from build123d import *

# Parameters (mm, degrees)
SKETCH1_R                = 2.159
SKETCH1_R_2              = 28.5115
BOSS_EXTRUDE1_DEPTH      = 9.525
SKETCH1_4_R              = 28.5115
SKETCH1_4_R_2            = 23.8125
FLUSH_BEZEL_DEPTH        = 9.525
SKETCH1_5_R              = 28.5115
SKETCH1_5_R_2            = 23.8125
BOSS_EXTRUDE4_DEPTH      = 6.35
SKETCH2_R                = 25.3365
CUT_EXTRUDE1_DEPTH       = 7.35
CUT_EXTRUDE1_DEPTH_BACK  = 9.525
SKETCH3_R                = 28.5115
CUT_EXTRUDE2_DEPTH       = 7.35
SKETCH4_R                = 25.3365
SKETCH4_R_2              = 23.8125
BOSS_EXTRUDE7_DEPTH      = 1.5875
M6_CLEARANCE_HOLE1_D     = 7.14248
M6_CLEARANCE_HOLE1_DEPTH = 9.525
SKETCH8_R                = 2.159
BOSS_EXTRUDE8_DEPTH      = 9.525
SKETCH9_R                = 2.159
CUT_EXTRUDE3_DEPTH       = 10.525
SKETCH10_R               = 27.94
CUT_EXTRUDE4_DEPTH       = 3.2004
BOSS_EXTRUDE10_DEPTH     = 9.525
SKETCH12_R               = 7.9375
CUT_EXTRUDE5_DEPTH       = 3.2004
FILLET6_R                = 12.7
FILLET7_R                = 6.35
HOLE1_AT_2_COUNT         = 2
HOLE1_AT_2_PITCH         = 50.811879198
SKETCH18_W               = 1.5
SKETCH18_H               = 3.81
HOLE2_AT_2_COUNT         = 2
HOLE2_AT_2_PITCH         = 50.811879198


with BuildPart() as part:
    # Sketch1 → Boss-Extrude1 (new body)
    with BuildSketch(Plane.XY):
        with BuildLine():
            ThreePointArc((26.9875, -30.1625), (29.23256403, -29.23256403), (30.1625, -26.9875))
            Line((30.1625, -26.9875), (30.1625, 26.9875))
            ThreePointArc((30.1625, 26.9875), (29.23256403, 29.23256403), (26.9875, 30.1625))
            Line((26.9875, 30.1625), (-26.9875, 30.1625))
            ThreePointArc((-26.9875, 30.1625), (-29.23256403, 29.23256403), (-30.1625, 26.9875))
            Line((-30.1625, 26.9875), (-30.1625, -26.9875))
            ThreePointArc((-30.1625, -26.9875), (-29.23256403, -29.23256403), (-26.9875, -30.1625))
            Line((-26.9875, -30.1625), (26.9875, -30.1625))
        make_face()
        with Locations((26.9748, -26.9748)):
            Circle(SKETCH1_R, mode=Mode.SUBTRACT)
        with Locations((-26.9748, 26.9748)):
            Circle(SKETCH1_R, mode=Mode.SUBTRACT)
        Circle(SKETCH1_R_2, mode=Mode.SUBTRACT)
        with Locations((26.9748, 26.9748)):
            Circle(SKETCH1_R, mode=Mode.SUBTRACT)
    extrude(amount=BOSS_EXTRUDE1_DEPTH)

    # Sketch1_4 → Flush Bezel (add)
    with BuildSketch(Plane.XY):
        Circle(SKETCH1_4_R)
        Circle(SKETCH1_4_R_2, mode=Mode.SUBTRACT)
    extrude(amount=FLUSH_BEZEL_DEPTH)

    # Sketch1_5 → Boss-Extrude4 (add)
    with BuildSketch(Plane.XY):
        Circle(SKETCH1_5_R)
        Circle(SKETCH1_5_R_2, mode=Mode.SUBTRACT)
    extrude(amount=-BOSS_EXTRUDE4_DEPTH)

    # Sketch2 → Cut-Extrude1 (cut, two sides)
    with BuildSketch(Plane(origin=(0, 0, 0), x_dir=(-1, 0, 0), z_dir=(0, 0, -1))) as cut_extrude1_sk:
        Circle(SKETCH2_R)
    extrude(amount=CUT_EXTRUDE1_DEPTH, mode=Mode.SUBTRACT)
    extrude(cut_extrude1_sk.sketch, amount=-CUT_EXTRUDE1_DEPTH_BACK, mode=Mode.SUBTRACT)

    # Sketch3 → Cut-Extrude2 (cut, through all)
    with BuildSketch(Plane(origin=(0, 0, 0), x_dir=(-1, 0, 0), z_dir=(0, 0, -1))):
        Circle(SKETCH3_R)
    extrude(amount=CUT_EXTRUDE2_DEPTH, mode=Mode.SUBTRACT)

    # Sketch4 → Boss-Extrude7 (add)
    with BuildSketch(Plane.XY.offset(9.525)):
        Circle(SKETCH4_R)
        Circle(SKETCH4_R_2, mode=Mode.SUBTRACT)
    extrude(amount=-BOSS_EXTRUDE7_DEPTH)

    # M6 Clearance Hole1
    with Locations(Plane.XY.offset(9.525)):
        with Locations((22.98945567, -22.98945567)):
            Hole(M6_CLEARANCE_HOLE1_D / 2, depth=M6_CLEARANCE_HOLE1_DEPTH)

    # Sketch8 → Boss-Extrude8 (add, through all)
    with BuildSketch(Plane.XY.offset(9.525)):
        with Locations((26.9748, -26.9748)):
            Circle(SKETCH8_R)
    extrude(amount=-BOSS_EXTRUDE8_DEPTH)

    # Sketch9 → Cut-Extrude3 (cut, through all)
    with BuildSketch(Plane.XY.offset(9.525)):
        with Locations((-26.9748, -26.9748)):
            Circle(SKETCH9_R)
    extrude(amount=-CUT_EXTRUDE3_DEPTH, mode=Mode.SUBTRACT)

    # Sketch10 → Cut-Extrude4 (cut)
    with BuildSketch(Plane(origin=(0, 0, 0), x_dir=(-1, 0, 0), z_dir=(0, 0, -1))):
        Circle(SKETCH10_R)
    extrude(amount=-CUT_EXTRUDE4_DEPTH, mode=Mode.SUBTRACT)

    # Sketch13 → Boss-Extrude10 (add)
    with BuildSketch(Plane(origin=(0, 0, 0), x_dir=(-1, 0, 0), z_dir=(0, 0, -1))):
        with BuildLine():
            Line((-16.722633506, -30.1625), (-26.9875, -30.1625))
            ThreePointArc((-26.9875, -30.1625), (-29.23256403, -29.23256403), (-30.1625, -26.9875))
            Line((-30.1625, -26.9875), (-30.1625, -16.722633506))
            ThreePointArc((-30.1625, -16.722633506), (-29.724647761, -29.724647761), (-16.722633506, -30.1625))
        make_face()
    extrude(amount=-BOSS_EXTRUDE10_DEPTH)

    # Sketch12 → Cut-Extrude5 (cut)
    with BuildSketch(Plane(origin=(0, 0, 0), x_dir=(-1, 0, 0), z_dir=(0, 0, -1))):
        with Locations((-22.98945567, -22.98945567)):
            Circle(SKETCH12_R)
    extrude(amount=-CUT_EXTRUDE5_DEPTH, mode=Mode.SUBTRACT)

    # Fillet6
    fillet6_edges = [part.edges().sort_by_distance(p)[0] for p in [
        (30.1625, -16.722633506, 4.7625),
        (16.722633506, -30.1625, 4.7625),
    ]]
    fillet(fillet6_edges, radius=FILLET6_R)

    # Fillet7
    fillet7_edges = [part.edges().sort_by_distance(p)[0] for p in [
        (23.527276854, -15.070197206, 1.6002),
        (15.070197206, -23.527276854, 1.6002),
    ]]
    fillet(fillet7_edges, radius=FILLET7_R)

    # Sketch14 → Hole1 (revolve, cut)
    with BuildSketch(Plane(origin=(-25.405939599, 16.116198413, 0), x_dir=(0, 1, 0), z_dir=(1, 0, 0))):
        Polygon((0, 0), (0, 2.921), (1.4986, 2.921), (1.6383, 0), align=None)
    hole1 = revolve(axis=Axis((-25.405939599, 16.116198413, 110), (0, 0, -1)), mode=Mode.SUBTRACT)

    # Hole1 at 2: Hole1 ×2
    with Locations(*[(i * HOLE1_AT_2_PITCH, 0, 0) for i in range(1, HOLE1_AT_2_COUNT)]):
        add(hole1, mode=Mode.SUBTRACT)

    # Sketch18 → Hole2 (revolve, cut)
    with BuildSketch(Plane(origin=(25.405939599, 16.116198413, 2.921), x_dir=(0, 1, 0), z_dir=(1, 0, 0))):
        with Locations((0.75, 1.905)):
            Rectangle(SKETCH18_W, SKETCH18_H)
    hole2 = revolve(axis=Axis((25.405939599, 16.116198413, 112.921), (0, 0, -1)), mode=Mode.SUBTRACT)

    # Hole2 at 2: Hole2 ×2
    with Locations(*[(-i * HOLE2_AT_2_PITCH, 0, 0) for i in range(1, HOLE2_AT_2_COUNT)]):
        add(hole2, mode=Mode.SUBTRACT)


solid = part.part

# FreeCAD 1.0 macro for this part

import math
import FreeCAD as App
import Part
import Sketcher
Q = App.Units.Quantity


def edges_at(feature, points):
    """Names of the edges that pass closest to the given points."""
    edges = feature.Shape.Edges
    near = lambda p: min(range(len(edges)), key=lambda i: edges[i].distToShape(Part.Vertex(*p))[0])
    return sorted({f"Edge{near(p) + 1}" for p in points})


def add_polygon(sketch, points):
    """Adds a closed chain of lines whose ends are joined by coincident constraints."""
    first, n = sketch.GeometryCount, len(points)
    for a, b in zip(points, points[1:] + points[:1]):
        sketch.addGeometry(Part.LineSegment(App.Vector(*a, 0), App.Vector(*b, 0)), False)
    for i in range(n):
        sketch.addConstraint(Sketcher.Constraint("Coincident", first + i, 2, first + (i + 1) % n, 1))

doc = App.newDocument("Part")
body = doc.addObject("PartDesign::Body", "Body")

# Sketch on XY plane
sketch1 = body.newObject("Sketcher::SketchObject", "Sketch")
sketch1.AttachmentSupport = (doc.getObject("XY_Plane"), [""])
sketch1.MapMode = "FlatFace"
sketch1.addGeometry(Part.ArcOfCircle(Part.Circle(App.Vector(26.9875, -26.9875, 0), App.Vector(0, 0, 1), 3.175), math.radians(-90), math.radians(0)), False)
sketch1.addGeometry(Part.LineSegment(App.Vector(30.1625, -26.9875, 0), App.Vector(30.1625, 26.9875, 0)), False)
sketch1.addGeometry(Part.ArcOfCircle(Part.Circle(App.Vector(26.9875, 26.9875, 0), App.Vector(0, 0, 1), 3.175), math.radians(0), math.radians(90)), False)
sketch1.addGeometry(Part.LineSegment(App.Vector(26.9875, 30.1625, 0), App.Vector(-26.9875, 30.1625, 0)), False)
sketch1.addGeometry(Part.ArcOfCircle(Part.Circle(App.Vector(-26.9875, 26.9875, 0), App.Vector(0, 0, 1), 3.175), math.radians(90), math.radians(180)), False)
sketch1.addGeometry(Part.LineSegment(App.Vector(-30.1625, 26.9875, 0), App.Vector(-30.1625, -26.9875, 0)), False)
sketch1.addGeometry(Part.ArcOfCircle(Part.Circle(App.Vector(-26.9875, -26.9875, 0), App.Vector(0, 0, 1), 3.175), math.radians(-180), math.radians(-90)), False)
sketch1.addGeometry(Part.LineSegment(App.Vector(-26.9875, -30.1625, 0), App.Vector(26.9875, -30.1625, 0)), False)
sketch1.addGeometry(Part.Circle(App.Vector(26.9748, -26.9748, 0), App.Vector(0, 0, 1), 2.159), False)
sketch1.addGeometry(Part.Circle(App.Vector(-26.9748, 26.9748, 0), App.Vector(0, 0, 1), 2.159), False)
sketch1.addGeometry(Part.Circle(App.Vector(0, 0, 0), App.Vector(0, 0, 1), 28.5115), False)
sketch1.addGeometry(Part.Circle(App.Vector(26.9748, 26.9748, 0), App.Vector(0, 0, 1), 2.159), False)
sketch1.addConstraint(Sketcher.Constraint("Tangent", 0, 2, 1, 1))
sketch1.addConstraint(Sketcher.Constraint("Tangent", 1, 2, 2, 1))
sketch1.addConstraint(Sketcher.Constraint("Tangent", 2, 2, 3, 1))
sketch1.addConstraint(Sketcher.Constraint("Tangent", 3, 2, 4, 1))
sketch1.addConstraint(Sketcher.Constraint("Tangent", 4, 2, 5, 1))
sketch1.addConstraint(Sketcher.Constraint("Tangent", 5, 2, 6, 1))
sketch1.addConstraint(Sketcher.Constraint("Tangent", 6, 2, 7, 1))
sketch1.addConstraint(Sketcher.Constraint("Tangent", 7, 2, 0, 1))
sketch1.addConstraint(Sketcher.Constraint("Vertical", 1))
sketch1.addConstraint(Sketcher.Constraint("Horizontal", 3))
sketch1.addConstraint(Sketcher.Constraint("Vertical", 5))
sketch1.addConstraint(Sketcher.Constraint("Horizontal", 7))
sketch1.addConstraint(Sketcher.Constraint("Coincident", 10, 3, -1, 1))
sketch1.addConstraint(Sketcher.Constraint("Equal", 0, 2))
sketch1.addConstraint(Sketcher.Constraint("Equal", 2, 4))
sketch1.addConstraint(Sketcher.Constraint("Equal", 4, 6))
sketch1.addConstraint(Sketcher.Constraint("Equal", 8, 9))
sketch1.addConstraint(Sketcher.Constraint("Equal", 9, 11))
sketch1.addConstraint(Sketcher.Constraint("Symmetric", 0, 3, 4, 3, -1, 1))
sketch1.addConstraint(Sketcher.Constraint("Symmetric", 8, 3, 9, 3, -1, 1))
sketch1.addConstraint(Sketcher.Constraint("Symmetric", 9, 3, 11, 3, -2))
sketch1.addConstraint(Sketcher.Constraint("Equal", 7, 1))
sketch1.addConstraint(Sketcher.Constraint("Diameter", 8, Q("0.17 in")))
sketch1.addConstraint(Sketcher.Constraint("Diameter", 10, Q("2.245 in")))
sketch1.addConstraint(Sketcher.Constraint("Radius", 0, Q("0.125 in")))
sketch1.addConstraint(Sketcher.Constraint("DistanceX", 3, 2, 3, 1, Q("2.125 in")))
sketch1.addConstraint(Sketcher.Constraint("DistanceX", -1, 1, 8, 3, Q("1.062 in")))
sketch1.addConstraint(Sketcher.Constraint("DistanceY", 8, 3, -1, 1, Q("1.062 in")))
pad1 = body.newObject("PartDesign::Pad", "Pad")
pad1.Profile = sketch1
pad1.Length = Q("0.375 in")

# Sketch on XY plane
sketch2 = body.newObject("Sketcher::SketchObject", "Sketch001")
sketch2.AttachmentSupport = (doc.getObject("XY_Plane"), [""])
sketch2.MapMode = "FlatFace"
sketch2.addGeometry(Part.Circle(App.Vector(0, 0, 0), App.Vector(0, 0, 1), 28.5115), False)
sketch2.addGeometry(Part.Circle(App.Vector(0, 0, 0), App.Vector(0, 0, 1), 23.8125), False)
sketch2.addConstraint(Sketcher.Constraint("Coincident", 0, 3, -1, 1))
sketch2.addConstraint(Sketcher.Constraint("Coincident", 1, 3, -1, 1))
sketch2.addConstraint(Sketcher.Constraint("Diameter", 0, Q("2.245 in")))
sketch2.addConstraint(Sketcher.Constraint("Diameter", 1, Q("1.875 in")))
pad2 = body.newObject("PartDesign::Pad", "Pad001")
pad2.Profile = sketch2
pad2.Length = Q("0.375 in")

# Sketch on XY plane
sketch3 = body.newObject("Sketcher::SketchObject", "Sketch002")
sketch3.AttachmentSupport = (doc.getObject("XY_Plane"), [""])
sketch3.MapMode = "FlatFace"
sketch3.addGeometry(Part.Circle(App.Vector(0, 0, 0), App.Vector(0, 0, 1), 28.5115), False)
sketch3.addGeometry(Part.Circle(App.Vector(0, 0, 0), App.Vector(0, 0, 1), 23.8125), False)
sketch3.addConstraint(Sketcher.Constraint("Coincident", 0, 3, -1, 1))
sketch3.addConstraint(Sketcher.Constraint("Coincident", 1, 3, -1, 1))
sketch3.addConstraint(Sketcher.Constraint("Diameter", 0, Q("2.245 in")))
sketch3.addConstraint(Sketcher.Constraint("Diameter", 1, Q("1.875 in")))
pad3 = body.newObject("PartDesign::Pad", "Pad002")
pad3.Profile = sketch3
pad3.Length = Q("0.25 in")
pad3.Reversed = True

# Sketch on XY plane
sketch4 = body.newObject("Sketcher::SketchObject", "Sketch003")
sketch4.AttachmentSupport = (doc.getObject("XY_Plane"), [""])
sketch4.MapMode = "FlatFace"
sketch4.addGeometry(Part.Circle(App.Vector(0, 0, 0), App.Vector(0, 0, 1), 25.3365), False)
sketch4.addConstraint(Sketcher.Constraint("Coincident", 0, 3, -1, 1))
sketch4.addConstraint(Sketcher.Constraint("Diameter", 0, Q("1.995 in")))
pocket1 = body.newObject("PartDesign::Pocket", "Pocket")
pocket1.Profile = sketch4
pocket1.Type = "ThroughAll"
pocket1.Midplane = True

# Sketch on XY plane
sketch5 = body.newObject("Sketcher::SketchObject", "Sketch004")
sketch5.AttachmentSupport = (doc.getObject("XY_Plane"), [""])
sketch5.MapMode = "FlatFace"
sketch5.addGeometry(Part.Circle(App.Vector(0, 0, 0), App.Vector(0, 0, 1), 28.5115), False)
sketch5.addConstraint(Sketcher.Constraint("Coincident", 0, 3, -1, 1))
sketch5.addConstraint(Sketcher.Constraint("Diameter", 0, Q("2.245 in")))
pocket2 = body.newObject("PartDesign::Pocket", "Pocket001")
pocket2.Profile = sketch5
pocket2.Type = "ThroughAll"

# Sketch on XY plane
sketch6 = body.newObject("Sketcher::SketchObject", "Sketch005")
sketch6.AttachmentSupport = (doc.getObject("XY_Plane"), [""])
sketch6.MapMode = "FlatFace"
sketch6.AttachmentOffset = App.Placement(App.Vector(0, 0, 0.375 * 25.4), App.Rotation())
sketch6.addGeometry(Part.Circle(App.Vector(0, 0, 0), App.Vector(0, 0, 1), 25.3365), False)
sketch6.addGeometry(Part.Circle(App.Vector(0, 0, 0), App.Vector(0, 0, 1), 23.8125), False)
sketch6.addConstraint(Sketcher.Constraint("Coincident", 0, 3, -1, 1))
sketch6.addConstraint(Sketcher.Constraint("Coincident", 1, 3, -1, 1))
sketch6.addConstraint(Sketcher.Constraint("Diameter", 0, Q("1.995 in")))
sketch6.addConstraint(Sketcher.Constraint("Diameter", 1, Q("1.875 in")))
pad4 = body.newObject("PartDesign::Pad", "Pad003")
pad4.Profile = sketch6
pad4.Length = Q("0.0625 in")
pad4.Reversed = True

# Sketch on XY plane
sketch7 = body.newObject("Sketcher::SketchObject", "Sketch006")
sketch7.AttachmentSupport = (doc.getObject("XY_Plane"), [""])
sketch7.MapMode = "FlatFace"
sketch7.AttachmentOffset = App.Placement(App.Vector(0, 0, 0.375 * 25.4), App.Rotation())
sketch7.addGeometry(Part.Circle(App.Vector(22.989456, -22.989456, 0), App.Vector(0, 0, 1), 3.57124), False)
sketch7.addConstraint(Sketcher.Constraint("Diameter", 0, Q("0.2812 in")))
sketch7.addConstraint(Sketcher.Constraint("DistanceX", -1, 1, 0, 3, 22.989456))
sketch7.addConstraint(Sketcher.Constraint("DistanceY", 0, 3, -1, 1, 22.989456))
doc.recompute()
hole = body.newObject("PartDesign::Hole", "Hole")
hole.Profile = sketch7
hole.ThreadType = "None"
hole.Diameter = Q("0.2812 in")
hole.DepthType = "Dimension"
hole.Depth = Q("0.375 in")
hole.DrillPoint = "Flat"

# Sketch on XY plane
sketch8 = body.newObject("Sketcher::SketchObject", "Sketch007")
sketch8.AttachmentSupport = (doc.getObject("XY_Plane"), [""])
sketch8.MapMode = "FlatFace"
sketch8.AttachmentOffset = App.Placement(App.Vector(0, 0, 0.375 * 25.4), App.Rotation())
sketch8.addGeometry(Part.Circle(App.Vector(26.9748, -26.9748, 0), App.Vector(0, 0, 1), 2.159), False)
sketch8.addConstraint(Sketcher.Constraint("Diameter", 0, Q("0.17 in")))
sketch8.addConstraint(Sketcher.Constraint("DistanceX", -1, 1, 0, 3, Q("1.062 in")))
sketch8.addConstraint(Sketcher.Constraint("DistanceY", 0, 3, -1, 1, Q("1.062 in")))
pad5 = body.newObject("PartDesign::Pad", "Pad004")
pad5.Profile = sketch8
pad5.Length = Q("0.375 in")
pad5.Reversed = True

# Sketch on XY plane
sketch9 = body.newObject("Sketcher::SketchObject", "Sketch008")
sketch9.AttachmentSupport = (doc.getObject("XY_Plane"), [""])
sketch9.MapMode = "FlatFace"
sketch9.AttachmentOffset = App.Placement(App.Vector(0, 0, 0.375 * 25.4), App.Rotation())
sketch9.addGeometry(Part.Circle(App.Vector(-26.9748, -26.9748, 0), App.Vector(0, 0, 1), 2.159), False)
sketch9.addConstraint(Sketcher.Constraint("Diameter", 0, Q("0.17 in")))
sketch9.addConstraint(Sketcher.Constraint("DistanceX", 0, 3, -1, 1, Q("1.062 in")))
sketch9.addConstraint(Sketcher.Constraint("DistanceY", 0, 3, -1, 1, Q("1.062 in")))
pocket3 = body.newObject("PartDesign::Pocket", "Pocket002")
pocket3.Profile = sketch9
pocket3.Type = "ThroughAll"

# Sketch on XY plane
sketch10 = body.newObject("Sketcher::SketchObject", "Sketch009")
sketch10.AttachmentSupport = (doc.getObject("XY_Plane"), [""])
sketch10.MapMode = "FlatFace"
sketch10.addGeometry(Part.Circle(App.Vector(0, 0, 0), App.Vector(0, 0, 1), 27.94), False)
sketch10.addConstraint(Sketcher.Constraint("Coincident", 0, 3, -1, 1))
sketch10.addConstraint(Sketcher.Constraint("Diameter", 0, Q("2.2 in")))
pocket4 = body.newObject("PartDesign::Pocket", "Pocket003")
pocket4.Profile = sketch10
pocket4.Length = Q("0.126 in")
pocket4.Reversed = True

# Sketch on XY plane
sketch11 = body.newObject("Sketcher::SketchObject", "Sketch010")
sketch11.AttachmentSupport = (doc.getObject("XY_Plane"), [""])
sketch11.MapMode = "FlatFace"
sketch11.addGeometry(Part.LineSegment(App.Vector(16.722634, -30.1625, 0), App.Vector(26.9875, -30.1625, 0)), False)
sketch11.addGeometry(Part.ArcOfCircle(Part.Circle(App.Vector(26.9875, -26.9875, 0), App.Vector(0, 0, 1), 3.175), math.radians(-90), math.radians(0)), False)
sketch11.addGeometry(Part.LineSegment(App.Vector(30.1625, -26.9875, 0), App.Vector(30.1625, -16.722634, 0)), False)
sketch11.addGeometry(Part.ArcOfCircle(Part.Circle(App.Vector(22.989456, -22.989456, 0), App.Vector(0, 0, 1), 9.525), math.radians(-131.142504), math.radians(41.142504)), False)
sketch11.addConstraint(Sketcher.Constraint("Tangent", 0, 2, 1, 1))
sketch11.addConstraint(Sketcher.Constraint("Tangent", 1, 2, 2, 1))
sketch11.addConstraint(Sketcher.Constraint("Coincident", 2, 2, 3, 2))
sketch11.addConstraint(Sketcher.Constraint("Coincident", 3, 1, 0, 1))
sketch11.addConstraint(Sketcher.Constraint("Horizontal", 0))
sketch11.addConstraint(Sketcher.Constraint("Vertical", 2))
sketch11.addConstraint(Sketcher.Constraint("Equal", 0, 2))
sketch11.addConstraint(Sketcher.Constraint("Radius", 1, Q("0.125 in")))
sketch11.addConstraint(Sketcher.Constraint("Radius", 3, Q("0.375 in")))
sketch11.addConstraint(Sketcher.Constraint("DistanceX", -1, 1, 1, 3, Q("1.0625 in")))
sketch11.addConstraint(Sketcher.Constraint("DistanceY", 1, 3, -1, 1, Q("1.0625 in")))
sketch11.addConstraint(Sketcher.Constraint("DistanceX", 0, 1, 0, 2, 10.264866))
pad6 = body.newObject("PartDesign::Pad", "Pad005")
pad6.Profile = sketch11
pad6.Length = Q("0.375 in")

# Sketch on XY plane
sketch12 = body.newObject("Sketcher::SketchObject", "Sketch011")
sketch12.AttachmentSupport = (doc.getObject("XY_Plane"), [""])
sketch12.MapMode = "FlatFace"
sketch12.addGeometry(Part.Circle(App.Vector(22.989456, -22.989456, 0), App.Vector(0, 0, 1), 7.9375), False)
sketch12.addConstraint(Sketcher.Constraint("Diameter", 0, Q("0.625 in")))
sketch12.addConstraint(Sketcher.Constraint("DistanceX", -1, 1, 0, 3, 22.989456))
sketch12.addConstraint(Sketcher.Constraint("DistanceY", 0, 3, -1, 1, 22.989456))
pocket5 = body.newObject("PartDesign::Pocket", "Pocket004")
pocket5.Profile = sketch12
pocket5.Length = Q("0.126 in")
pocket5.Reversed = True
doc.recompute()

fillet = body.newObject("PartDesign::Fillet", "Fillet")
fillet.Base = (pocket5, edges_at(pocket5, [(30.163, -16.723, 4.763), (16.723, -30.163, 4.763)]))
fillet.Radius = Q("0.5 in")
doc.recompute()

fillet2 = body.newObject("PartDesign::Fillet", "Fillet001")
fillet2.Base = (fillet, edges_at(fillet, [(23.527, -15.07, 1.6), (15.07, -23.527, 1.6)]))
fillet2.Radius = Q("0.25 in")

# Sketch on YZ plane
sketch13 = body.newObject("Sketcher::SketchObject", "Sketch012")
sketch13.AttachmentSupport = (doc.getObject("YZ_Plane"), [""])
sketch13.MapMode = "FlatFace"
sketch13.AttachmentOffset = App.Placement(App.Vector(0, 0, -25.40594), App.Rotation())
add_polygon(sketch13, [(16.116198, 2.921), (16.116198, 0), (17.754498, 0), (17.614798, 2.921)])  # lines 0-3
sketch13.addGeometry(Part.LineSegment(App.Vector(16.116198, 2.921, 0), App.Vector(16.116198, 0, 0)), True)  # axis
sketch13.addConstraint(Sketcher.Constraint("Vertical", 0))
sketch13.addConstraint(Sketcher.Constraint("Horizontal", 1))
sketch13.addConstraint(Sketcher.Constraint("Horizontal", 3))
sketch13.addConstraint(Sketcher.Constraint("Vertical", 4))
sketch13.addConstraint(Sketcher.Constraint("Coincident", 4, 1, 3, 2))
sketch13.addConstraint(Sketcher.Constraint("PointOnObject", 0, 2, -1))
sketch13.addConstraint(Sketcher.Constraint("PointOnObject", 4, 2, -1))
sketch13.addConstraint(Sketcher.Constraint("DistanceX", 3, 2, 3, 1, Q("0.059 in")))
sketch13.addConstraint(Sketcher.Constraint("DistanceY", 0, 2, 0, 1, Q("0.115 in")))
sketch13.addConstraint(Sketcher.Constraint("DistanceX", 1, 1, 1, 2, Q("0.0645 in")))
sketch13.addConstraint(Sketcher.Constraint("DistanceX", -1, 1, 0, 2, 16.116198))
groove = body.newObject("PartDesign::Groove", "Groove")
groove.Profile = sketch13
groove.ReferenceAxis = (sketch13, ["Axis0"])
groove.Angle = 360
doc.recompute()

linearpattern = body.newObject("PartDesign::LinearPattern", "LinearPattern")
linearpattern.Originals = [groove]
linearpattern.Direction = (doc.getObject("X_Axis"), [""])
linearpattern.Mode = "offset"
linearpattern.Offset = 50.811879
linearpattern.Occurrences = 2
body.Tip = linearpattern

# Sketch on YZ plane
sketch14 = body.newObject("Sketcher::SketchObject", "Sketch013")
sketch14.AttachmentSupport = (doc.getObject("YZ_Plane"), [""])
sketch14.MapMode = "FlatFace"
sketch14.AttachmentOffset = App.Placement(App.Vector(0, 0, 25.40594), App.Rotation())
add_polygon(sketch14, [(16.116198, 6.731), (16.116198, 2.921), (17.616198, 2.921), (17.616198, 6.731)])  # lines 0-3
sketch14.addGeometry(Part.LineSegment(App.Vector(16.116198, 6.731, 0), App.Vector(16.116198, 2.921, 0)), True)  # axis
sketch14.addConstraint(Sketcher.Constraint("Vertical", 0))
sketch14.addConstraint(Sketcher.Constraint("Horizontal", 1))
sketch14.addConstraint(Sketcher.Constraint("Vertical", 2))
sketch14.addConstraint(Sketcher.Constraint("Horizontal", 3))
sketch14.addConstraint(Sketcher.Constraint("Vertical", 4))
sketch14.addConstraint(Sketcher.Constraint("Coincident", 4, 1, 3, 2))
sketch14.addConstraint(Sketcher.Constraint("Horizontal", 1, 2, 4, 2))
sketch14.addConstraint(Sketcher.Constraint("DistanceY", 0, 2, 0, 1, Q("0.15 in")))
sketch14.addConstraint(Sketcher.Constraint("DistanceY", -1, 1, 0, 2, Q("0.115 in")))
sketch14.addConstraint(Sketcher.Constraint("DistanceX", 1, 1, 1, 2, 1.5))
sketch14.addConstraint(Sketcher.Constraint("DistanceX", -1, 1, 0, 2, 16.116198))
groove2 = body.newObject("PartDesign::Groove", "Groove001")
groove2.Profile = sketch14
groove2.ReferenceAxis = (sketch14, ["Axis0"])
groove2.Angle = 360
doc.recompute()

linearpattern2 = body.newObject("PartDesign::LinearPattern", "LinearPattern001")
linearpattern2.Originals = [groove2]
linearpattern2.Direction = (doc.getObject("X_Axis"), [""])
linearpattern2.Mode = "offset"
linearpattern2.Offset = 50.811879
linearpattern2.Occurrences = 2
linearpattern2.Reversed = True
body.Tip = linearpattern2

doc.recompute()
